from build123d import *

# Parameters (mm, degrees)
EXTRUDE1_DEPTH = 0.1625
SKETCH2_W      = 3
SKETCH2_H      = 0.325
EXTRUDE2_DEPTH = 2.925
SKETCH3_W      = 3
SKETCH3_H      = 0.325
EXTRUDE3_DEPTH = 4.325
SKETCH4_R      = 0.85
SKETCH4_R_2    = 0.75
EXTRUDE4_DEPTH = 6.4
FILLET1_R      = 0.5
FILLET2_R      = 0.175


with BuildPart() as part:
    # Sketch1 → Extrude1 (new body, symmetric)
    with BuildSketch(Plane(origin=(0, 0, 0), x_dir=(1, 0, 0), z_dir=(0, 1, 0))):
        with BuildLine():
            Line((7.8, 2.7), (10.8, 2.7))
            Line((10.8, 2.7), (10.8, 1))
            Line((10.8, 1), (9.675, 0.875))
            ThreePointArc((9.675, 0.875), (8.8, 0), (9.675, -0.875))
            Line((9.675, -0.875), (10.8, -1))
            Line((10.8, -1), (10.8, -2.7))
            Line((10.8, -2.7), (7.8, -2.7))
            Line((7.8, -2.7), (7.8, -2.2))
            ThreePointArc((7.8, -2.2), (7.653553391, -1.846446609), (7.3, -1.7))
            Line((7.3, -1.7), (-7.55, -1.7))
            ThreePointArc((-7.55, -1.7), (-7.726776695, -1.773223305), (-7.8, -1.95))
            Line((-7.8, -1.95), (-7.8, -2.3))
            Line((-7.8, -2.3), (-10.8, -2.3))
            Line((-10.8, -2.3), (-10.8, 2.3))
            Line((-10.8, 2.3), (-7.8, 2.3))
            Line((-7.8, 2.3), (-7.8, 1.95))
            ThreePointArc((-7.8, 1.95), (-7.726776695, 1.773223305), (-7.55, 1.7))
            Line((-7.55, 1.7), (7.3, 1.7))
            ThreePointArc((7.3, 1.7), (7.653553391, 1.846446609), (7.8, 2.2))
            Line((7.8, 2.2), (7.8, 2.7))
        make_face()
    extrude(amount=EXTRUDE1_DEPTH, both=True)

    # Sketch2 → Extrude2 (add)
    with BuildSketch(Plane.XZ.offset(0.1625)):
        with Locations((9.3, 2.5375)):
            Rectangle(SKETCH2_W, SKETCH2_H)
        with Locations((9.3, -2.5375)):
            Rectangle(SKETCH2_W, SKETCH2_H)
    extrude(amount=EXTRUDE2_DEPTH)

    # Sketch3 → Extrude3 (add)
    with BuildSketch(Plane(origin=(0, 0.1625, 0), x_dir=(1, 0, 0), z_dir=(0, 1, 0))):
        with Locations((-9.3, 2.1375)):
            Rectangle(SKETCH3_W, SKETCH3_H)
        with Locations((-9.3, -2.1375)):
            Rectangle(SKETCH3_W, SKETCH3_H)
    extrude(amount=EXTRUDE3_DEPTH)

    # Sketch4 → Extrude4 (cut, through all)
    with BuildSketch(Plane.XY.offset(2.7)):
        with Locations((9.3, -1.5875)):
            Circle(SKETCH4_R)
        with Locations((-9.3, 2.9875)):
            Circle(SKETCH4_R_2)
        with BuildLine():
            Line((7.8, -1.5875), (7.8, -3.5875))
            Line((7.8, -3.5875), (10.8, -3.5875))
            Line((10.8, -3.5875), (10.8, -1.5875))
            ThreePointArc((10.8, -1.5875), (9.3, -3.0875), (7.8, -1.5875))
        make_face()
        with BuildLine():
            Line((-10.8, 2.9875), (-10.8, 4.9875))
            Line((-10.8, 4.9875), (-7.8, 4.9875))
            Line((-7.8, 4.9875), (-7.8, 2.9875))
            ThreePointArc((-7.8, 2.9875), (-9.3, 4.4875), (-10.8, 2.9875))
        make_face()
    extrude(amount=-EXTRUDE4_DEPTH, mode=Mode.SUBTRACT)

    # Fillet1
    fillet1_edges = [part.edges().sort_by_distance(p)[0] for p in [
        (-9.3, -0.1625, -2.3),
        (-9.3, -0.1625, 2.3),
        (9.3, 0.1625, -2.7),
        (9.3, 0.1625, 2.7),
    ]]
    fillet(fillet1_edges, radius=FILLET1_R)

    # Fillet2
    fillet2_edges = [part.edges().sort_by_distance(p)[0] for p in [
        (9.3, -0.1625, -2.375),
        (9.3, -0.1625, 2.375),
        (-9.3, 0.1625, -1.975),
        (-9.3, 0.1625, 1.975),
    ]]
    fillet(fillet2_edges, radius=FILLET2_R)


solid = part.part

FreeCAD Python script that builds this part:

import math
import FreeCAD as App
import Part
import Sketcher
from FreeCAD import Vector
Q = App.Units.Quantity


def edges_at(feature, points):
    """Names of the edges that pass closest to the given points."""
    edges = feature.Shape.Edges
    near = lambda p: min(range(len(edges)), key=lambda i: edges[i].distToShape(Part.Vertex(*p))[0])
    return sorted({f"Edge{near(p) + 1}" for p in points})

doc = App.newDocument("Part")
body = doc.addObject("PartDesign::Body", "Body")

sketch1 = body.newObject("Sketcher::SketchObject", "Sketch")
sketch1.AttachmentSupport = (doc.getObject("XZ_Plane"), [""])
sketch1.MapMode = "FlatFace"
sketch1.addGeometry([
    Part.LineSegment(Vector(10.8, -2.7, 0), Vector(7.8, -2.7, 0)),
    Part.LineSegment(Vector(7.8, -2.7, 0), Vector(7.8, -2.2, 0)),
    Part.ArcOfCircle(Part.Circle(Vector(7.3, -2.2, 0), Vector(0, 0, 1), 0.5), math.radians(0), math.radians(90)),
    Part.LineSegment(Vector(7.3, -1.7, 0), Vector(-7.55, -1.7, 0)),
    Part.ArcOfCircle(Part.Circle(Vector(-7.55, -1.95, 0), Vector(0, 0, 1), 0.25), math.radians(90), math.radians(180)),
    Part.LineSegment(Vector(-7.8, -1.95, 0), Vector(-7.8, -2.3, 0)),
    Part.LineSegment(Vector(-7.8, -2.3, 0), Vector(-10.8, -2.3, 0)),
    Part.LineSegment(Vector(-10.8, -2.3, 0), Vector(-10.8, 2.3, 0)),
    Part.LineSegment(Vector(-10.8, 2.3, 0), Vector(-7.8, 2.3, 0)),
    Part.LineSegment(Vector(-7.8, 2.3, 0), Vector(-7.8, 1.95, 0)),
    Part.ArcOfCircle(Part.Circle(Vector(-7.55, 1.95, 0), Vector(0, 0, 1), 0.25), math.radians(-180), math.radians(-90)),
    Part.LineSegment(Vector(-7.55, 1.7, 0), Vector(7.3, 1.7, 0)),
    Part.ArcOfCircle(Part.Circle(Vector(7.3, 2.2, 0), Vector(0, 0, 1), 0.5), math.radians(-90), math.radians(0)),
    Part.LineSegment(Vector(7.8, 2.2, 0), Vector(7.8, 2.7, 0)),
    Part.LineSegment(Vector(7.8, 2.7, 0), Vector(10.8, 2.7, 0)),
    Part.LineSegment(Vector(10.8, 2.7, 0), Vector(10.8, 1, 0)),
    Part.LineSegment(Vector(10.8, 1, 0), Vector(9.68, 0.88, 0)),
    Part.ArcOfCircle(Part.Circle(Vector(9.68, 0, 0), Vector(0, 0, 1), 0.88), math.radians(90), math.radians(270)),
    Part.LineSegment(Vector(9.68, -0.88, 0), Vector(10.8, -1, 0)),
    Part.LineSegment(Vector(10.8, -1, 0), Vector(10.8, -2.7, 0)),
], False)
sketch1.addConstraint([
    Sketcher.Constraint("Coincident", 0, 2, 1, 1),
    Sketcher.Constraint("Tangent", 1, 2, 2, 1),
    Sketcher.Constraint("Tangent", 2, 2, 3, 1),
    Sketcher.Constraint("Tangent", 3, 2, 4, 1),
    Sketcher.Constraint("Tangent", 4, 2, 5, 1),
    Sketcher.Constraint("Coincident", 5, 2, 6, 1),
    Sketcher.Constraint("Coincident", 6, 2, 7, 1),
    Sketcher.Constraint("Coincident", 7, 2, 8, 1),
    Sketcher.Constraint("Coincident", 8, 2, 9, 1),
    Sketcher.Constraint("Tangent", 9, 2, 10, 1),
    Sketcher.Constraint("Tangent", 10, 2, 11, 1),
    Sketcher.Constraint("Tangent", 11, 2, 12, 1),
    Sketcher.Constraint("Tangent", 12, 2, 13, 1),
    Sketcher.Constraint("Coincident", 13, 2, 14, 1),
    Sketcher.Constraint("Coincident", 14, 2, 15, 1),
    Sketcher.Constraint("Coincident", 15, 2, 16, 1),
    Sketcher.Constraint("Coincident", 16, 2, 17, 1),
    Sketcher.Constraint("Coincident", 17, 2, 18, 1),
    Sketcher.Constraint("Coincident", 18, 2, 19, 1),
    Sketcher.Constraint("Coincident", 19, 2, 0, 1),
    Sketcher.Constraint("Horizontal", 0),
    Sketcher.Constraint("Vertical", 1),
    Sketcher.Constraint("Horizontal", 3),
    Sketcher.Constraint("Vertical", 5),
    Sketcher.Constraint("Horizontal", 6),
    Sketcher.Constraint("Vertical", 7),
    Sketcher.Constraint("Horizontal", 8),
    Sketcher.Constraint("Vertical", 9),
    Sketcher.Constraint("Horizontal", 11),
    Sketcher.Constraint("Vertical", 13),
    Sketcher.Constraint("Horizontal", 14),
    Sketcher.Constraint("Vertical", 15),
    Sketcher.Constraint("Vertical", 19),
    Sketcher.Constraint("Equal", 4, 10),
    Sketcher.Constraint("Equal", 2, 12),
    Sketcher.Constraint("Symmetric", 4, 3, 10, 3, -1),
    Sketcher.Constraint("Symmetric", 0, 2, 13, 2, -1),
    Sketcher.Constraint("Symmetric", 16, 2, 17, 2, -1),
    Sketcher.Constraint("Symmetric", 15, 2, 18, 2, -1),
    Sketcher.Constraint("Vertical", 17, 3, 16, 2),
    Sketcher.Constraint("Equal", 0, 6),
    Sketcher.Constraint("Equal", 5, 9),
    Sketcher.Constraint("Radius", 2, Q("0.5 mm")),
    Sketcher.Constraint("DistanceX", 0, 2, 0, 1, Q("3 mm")),
    Sketcher.Constraint("Radius", 4, Q("0.25 mm")),
    Sketcher.Constraint("DistanceY", 1, 1, 1, 2, Q("0.5 mm")),
    Sketcher.Constraint("DistanceY", 7, 1, 7, 2, Q("4.6 mm")),
    Sketcher.Constraint("DistanceY", 15, 2, 15, 1, Q("1.7 mm")),
    Sketcher.Constraint("DistanceY", -1, 1, 15, 2, Q("1 mm")),
    Sketcher.Constraint("Radius", 17, Q("0.875 mm")),
    Sketcher.Constraint("DistanceX", 3, 2, 3, 1, Q("14.85 mm")),
    Sketcher.Constraint("DistanceX", -1, 1, 2, 3, Q("7.3 mm")),
    Sketcher.Constraint("DistanceX", -1, 1, 17, 3, Q("9.675 mm")),
])
pad1 = body.newObject("PartDesign::Pad", "Pad")
pad1.Profile = sketch1
pad1.Length = 0.325
pad1.Midplane = True

sketch2 = body.newObject("Sketcher::SketchObject", "Sketch001")
sketch2.AttachmentSupport = (doc.getObject("XZ_Plane"), [""])
sketch2.MapMode = "FlatFace"
sketch2.AttachmentOffset = App.Placement(Vector(0, 0, 0.1625), App.Rotation())
sketch2.addGeometry([
    Part.LineSegment(Vector(7.8, 2.7, 0), Vector(7.8, 2.38, 0)),
    Part.LineSegment(Vector(7.8, 2.38, 0), Vector(10.8, 2.38, 0)),
    Part.LineSegment(Vector(10.8, 2.38, 0), Vector(10.8, 2.7, 0)),
    Part.LineSegment(Vector(10.8, 2.7, 0), Vector(7.8, 2.7, 0)),
    Part.LineSegment(Vector(7.8, -2.38, 0), Vector(7.8, -2.7, 0)),
    Part.LineSegment(Vector(7.8, -2.7, 0), Vector(10.8, -2.7, 0)),
    Part.LineSegment(Vector(10.8, -2.7, 0), Vector(10.8, -2.38, 0)),
    Part.LineSegment(Vector(10.8, -2.38, 0), Vector(7.8, -2.38, 0)),
], False)
sketch2.addConstraint([
    Sketcher.Constraint("Coincident", 0, 2, 1, 1),
    Sketcher.Constraint("Coincident", 1, 2, 2, 1),
    Sketcher.Constraint("Coincident", 2, 2, 3, 1),
    Sketcher.Constraint("Coincident", 3, 2, 0, 1),
    Sketcher.Constraint("Coincident", 4, 2, 5, 1),
    Sketcher.Constraint("Coincident", 5, 2, 6, 1),
    Sketcher.Constraint("Coincident", 6, 2, 7, 1),
    Sketcher.Constraint("Coincident", 7, 2, 4, 1),
    Sketcher.Constraint("Vertical", 0),
    Sketcher.Constraint("Horizontal", 1),
    Sketcher.Constraint("Vertical", 2),
    Sketcher.Constraint("Horizontal", 3),
    Sketcher.Constraint("Vertical", 4),
    Sketcher.Constraint("Horizontal", 5),
    Sketcher.Constraint("Vertical", 6),
    Sketcher.Constraint("Horizontal", 7),
    Sketcher.Constraint("Symmetric", 3, 2, 4, 2, -1),
    Sketcher.Constraint("Symmetric", 1, 2, 6, 2, -1),
    Sketcher.Constraint("DistanceX", 1, 1, 1, 2, Q("3 mm")),
    Sketcher.Constraint("DistanceX", -1, 1, 0, 2, Q("7.8 mm")),
    Sketcher.Constraint("DistanceY", -1, 1, 2, 2, Q("2.7 mm")),
    Sketcher.Constraint("DistanceY", 0, 2, 0, 1, Q("0.325 mm")),
])
pad2 = body.newObject("PartDesign::Pad", "Pad001")
pad2.Profile = sketch2
pad2.Length = 2.925

sketch3 = body.newObject("Sketcher::SketchObject", "Sketch002")
sketch3.AttachmentSupport = (doc.getObject("XZ_Plane"), [""])
sketch3.MapMode = "FlatFace"
sketch3.AttachmentOffset = App.Placement(Vector(0, 0, -0.1625), App.Rotation())
sketch3.addGeometry([
    Part.LineSegment(Vector(-10.8, -2.3, 0), Vector(-10.8, -1.98, 0)),
    Part.LineSegment(Vector(-10.8, -1.98, 0), Vector(-7.8, -1.98, 0)),
    Part.LineSegment(Vector(-7.8, -1.98, 0), Vector(-7.8, -2.3, 0)),
    Part.LineSegment(Vector(-7.8, -2.3, 0), Vector(-10.8, -2.3, 0)),
    Part.LineSegment(Vector(-10.8, 1.98, 0), Vector(-10.8, 2.3, 0)),
    Part.LineSegment(Vector(-10.8, 2.3, 0), Vector(-7.8, 2.3, 0)),
    Part.LineSegment(Vector(-7.8, 2.3, 0), Vector(-7.8, 1.98, 0)),
    Part.LineSegment(Vector(-7.8, 1.98, 0), Vector(-10.8, 1.98, 0)),
], False)
sketch3.addConstraint([
    Sketcher.Constraint("Coincident", 0, 2, 1, 1),
    Sketcher.Constraint("Coincident", 1, 2, 2, 1),
    Sketcher.Constraint("Coincident", 2, 2, 3, 1),
    Sketcher.Constraint("Coincident", 3, 2, 0, 1),
    Sketcher.Constraint("Coincident", 4, 2, 5, 1),
    Sketcher.Constraint("Coincident", 5, 2, 6, 1),
    Sketcher.Constraint("Coincident", 6, 2, 7, 1),
    Sketcher.Constraint("Coincident", 7, 2, 4, 1),
    Sketcher.Constraint("Vertical", 0),
    Sketcher.Constraint("Horizontal", 1),
    Sketcher.Constraint("Vertical", 2),
    Sketcher.Constraint("Horizontal", 3),
    Sketcher.Constraint("Vertical", 4),
    Sketcher.Constraint("Horizontal", 5),
    Sketcher.Constraint("Vertical", 6),
    Sketcher.Constraint("Horizontal", 7),
    Sketcher.Constraint("Symmetric", 3, 2, 4, 2, -1),
    Sketcher.Constraint("Symmetric", 1, 2, 6, 2, -1),
    Sketcher.Constraint("DistanceX", 1, 1, 1, 2, Q("3 mm")),
    Sketcher.Constraint("DistanceX", 0, 2, -1, 1, Q("10.8 mm")),
    Sketcher.Constraint("DistanceY", 2, 2, -1, 1, Q("2.3 mm")),
    Sketcher.Constraint("DistanceY", 0, 1, 0, 2, Q("0.325 mm")),
])
pad3 = body.newObject("PartDesign::Pad", "Pad002")
pad3.Profile = sketch3
pad3.Length = 4.325
pad3.Reversed = True

sketch4 = body.newObject("Sketcher::SketchObject", "Sketch003")
sketch4.AttachmentSupport = (doc.getObject("XY_Plane"), [""])
sketch4.MapMode = "FlatFace"
sketch4.AttachmentOffset = App.Placement(Vector(0, 0, 2.7), App.Rotation())
sketch4.addGeometry([
    Part.Circle(Vector(9.3, -1.6, 0), Vector(0, 0, 1), 0.8),
    Part.Circle(Vector(-9.3, 3, 0), Vector(0, 0, 1), 0.8),
    Part.LineSegment(Vector(7.8, -1.6, 0), Vector(7.8, -3.6, 0)),
    Part.LineSegment(Vector(7.8, -3.6, 0), Vector(10.8, -3.6, 0)),
    Part.LineSegment(Vector(10.8, -3.6, 0), Vector(10.8, -1.6, 0)),
    Part.ArcOfCircle(Part.Circle(Vector(9.3, -1.6, 0), Vector(0, 0, 1), 1.5), math.radians(180), math.radians(360)),
    Part.LineSegment(Vector(-10.8, 5, 0), Vector(-10.8, 3, 0)),
    Part.ArcOfCircle(Part.Circle(Vector(-9.3, 3, 0), Vector(0, 0, 1), 1.5), math.radians(0), math.radians(180)),
    Part.LineSegment(Vector(-7.8, 3, 0), Vector(-7.8, 5, 0)),
    Part.LineSegment(Vector(-7.8, 5, 0), Vector(-10.8, 5, 0)),
], False)
sketch4.addConstraint([
    Sketcher.Constraint("Coincident", 2, 2, 3, 1),
    Sketcher.Constraint("Coincident", 3, 2, 4, 1),
    Sketcher.Constraint("Tangent", 4, 2, 5, 2),
    Sketcher.Constraint("Tangent", 5, 1, 2, 1),
    Sketcher.Constraint("Tangent", 6, 2, 7, 2),
    Sketcher.Constraint("Tangent", 7, 1, 8, 1),
    Sketcher.Constraint("Coincident", 8, 2, 9, 1),
    Sketcher.Constraint("Coincident", 9, 2, 6, 1),
    Sketcher.Constraint("Vertical", 2),
    Sketcher.Constraint("Horizontal", 3),
    Sketcher.Constraint("Vertical", 4),
    Sketcher.Constraint("Vertical", 6),
    Sketcher.Constraint("Vertical", 8),
    Sketcher.Constraint("Horizontal", 9),
    Sketcher.Constraint("Coincident", 5, 3, 0, 3),
    Sketcher.Constraint("Coincident", 7, 3, 1, 3),
    Sketcher.Constraint("Equal", 5, 7),
    Sketcher.Constraint("Equal", 4, 6),
    Sketcher.Constraint("Diameter", 0, Q("1.7 mm")),
    Sketcher.Constraint("Diameter", 1, Q("1.5 mm")),
    Sketcher.Constraint("Radius", 5, Q("1.5 mm")),
    Sketcher.Constraint("DistanceY", 2, 2, 2, 1, Q("2 mm")),
    Sketcher.Constraint("DistanceX", -1, 1, 0, 3, Q("9.3 mm")),
    Sketcher.Constraint("DistanceX", 1, 3, -1, 1, Q("9.3 mm")),
    Sketcher.Constraint("DistanceY", 0, 3, 1, 3, Q("4.575 mm")),
    Sketcher.Constraint("DistanceY", 0, 3, -1, 1, Q("1.5875 mm")),
])
pocket1 = body.newObject("PartDesign::Pocket", "Pocket")
pocket1.Profile = sketch4
pocket1.Type = "ThroughAll"
doc.recompute()

fillet = body.newObject("PartDesign::Fillet", "Fillet")
fillet.Base = (pocket1, edges_at(pocket1, [
    (-9.3, -0.163, -2.3),
    (-9.3, -0.163, 2.3),
    (9.3, 0.163, -2.7),
    (9.3, 0.163, 2.7),
]))
fillet.Radius = 0.5
doc.recompute()

fillet2 = body.newObject("PartDesign::Fillet", "Fillet001")
fillet2.Base = (fillet, edges_at(fillet, [
    (9.3, -0.163, -2.375),
    (9.3, -0.163, 2.375),
    (-9.3, 0.163, -1.975),
    (-9.3, 0.163, 1.975),
]))
fillet2.Radius = 0.175

doc.recompute()
